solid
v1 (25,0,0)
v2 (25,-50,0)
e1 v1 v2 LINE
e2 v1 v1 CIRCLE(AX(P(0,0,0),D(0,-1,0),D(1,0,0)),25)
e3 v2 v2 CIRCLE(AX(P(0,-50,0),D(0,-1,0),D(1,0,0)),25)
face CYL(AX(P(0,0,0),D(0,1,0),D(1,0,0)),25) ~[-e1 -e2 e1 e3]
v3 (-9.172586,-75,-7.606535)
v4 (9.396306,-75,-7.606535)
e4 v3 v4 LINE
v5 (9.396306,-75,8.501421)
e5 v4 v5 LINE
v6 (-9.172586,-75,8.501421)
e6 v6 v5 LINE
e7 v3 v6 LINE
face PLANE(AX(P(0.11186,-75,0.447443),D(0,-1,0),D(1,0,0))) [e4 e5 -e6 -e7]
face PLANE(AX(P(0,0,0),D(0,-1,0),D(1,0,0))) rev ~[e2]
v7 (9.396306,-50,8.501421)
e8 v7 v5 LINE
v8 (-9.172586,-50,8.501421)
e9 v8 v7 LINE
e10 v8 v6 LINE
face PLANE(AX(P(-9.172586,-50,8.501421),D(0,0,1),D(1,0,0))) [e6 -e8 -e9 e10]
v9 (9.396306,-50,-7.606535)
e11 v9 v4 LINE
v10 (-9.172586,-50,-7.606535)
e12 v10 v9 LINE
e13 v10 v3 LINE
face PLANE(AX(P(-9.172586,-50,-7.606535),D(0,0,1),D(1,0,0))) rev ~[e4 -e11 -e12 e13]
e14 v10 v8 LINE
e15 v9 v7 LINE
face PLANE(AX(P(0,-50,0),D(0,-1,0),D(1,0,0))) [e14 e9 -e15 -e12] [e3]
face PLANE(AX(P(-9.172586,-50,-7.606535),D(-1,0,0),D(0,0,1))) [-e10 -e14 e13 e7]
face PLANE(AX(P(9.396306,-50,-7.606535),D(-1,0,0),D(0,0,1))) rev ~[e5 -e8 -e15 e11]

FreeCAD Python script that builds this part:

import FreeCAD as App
import Part
import Sketcher
Q = App.Units.Quantity


def add_polygon(sketch, points):
    """Adds a closed chain of lines whose ends are joined by coincident constraints."""
    first, n = sketch.GeometryCount, len(points)
    for a, b in zip(points, points[1:] + points[:1]):
        sketch.addGeometry(Part.LineSegment(App.Vector(*a, 0), App.Vector(*b, 0)), False)
    for i in range(n):
        sketch.addConstraint(Sketcher.Constraint("Coincident", first + i, 2, first + (i + 1) % n, 1))

doc = App.newDocument("Part")
body = doc.addObject("PartDesign::Body", "Body")

# Sketch on XZ plane
sketch1 = body.newObject("Sketcher::SketchObject", "Sketch")
sketch1.AttachmentSupport = (doc.getObject("XZ_Plane"), [""])
sketch1.MapMode = "FlatFace"
sketch1.addGeometry(Part.Circle(App.Vector(0, 0, 0), App.Vector(0, 0, 1), 25), False)
sketch1.addConstraint(Sketcher.Constraint("Coincident", 0, 3, -1, 1))
sketch1.addConstraint(Sketcher.Constraint("Diameter", 0, Q("50 mm")))
pad1 = body.newObject("PartDesign::Pad", "Pad")
pad1.Profile = sketch1
pad1.Length = 50

# Sketch on XZ plane
sketch2 = body.newObject("Sketcher::SketchObject", "Sketch001")
sketch2.AttachmentSupport = (doc.getObject("XZ_Plane"), [""])
sketch2.MapMode = "FlatFace"
sketch2.AttachmentOffset = App.Placement(App.Vector(0, 0, 50), App.Rotation())
add_polygon(sketch2, [(-9, 9), (-9, -8), (9, -8), (9, 9)])  # lines 0-3
sketch2.addConstraint(Sketcher.Constraint("Vertical", 0))
sketch2.addConstraint(Sketcher.Constraint("Horizontal", 1))
sketch2.addConstraint(Sketcher.Constraint("Vertical", 2))
sketch2.addConstraint(Sketcher.Constraint("Horizontal", 3))
sketch2.addConstraint(Sketcher.Constraint("DistanceX", 1, 1, 1, 2, Q("18.568892 mm")))
sketch2.addConstraint(Sketcher.Constraint("DistanceY", 0, 2, 0, 1, Q("16.107955 mm")))
sketch2.addConstraint(Sketcher.Constraint("DistanceY", -1, 1, 2, 2, Q("8.501421 mm")))
sketch2.addConstraint(Sketcher.Constraint("DistanceX", 0, 2, -1, 1, Q("9.172586 mm")))
pad2 = body.newObject("PartDesign::Pad", "Pad001")
pad2.Profile = sketch2
pad2.Length = 25

doc.recompute()
